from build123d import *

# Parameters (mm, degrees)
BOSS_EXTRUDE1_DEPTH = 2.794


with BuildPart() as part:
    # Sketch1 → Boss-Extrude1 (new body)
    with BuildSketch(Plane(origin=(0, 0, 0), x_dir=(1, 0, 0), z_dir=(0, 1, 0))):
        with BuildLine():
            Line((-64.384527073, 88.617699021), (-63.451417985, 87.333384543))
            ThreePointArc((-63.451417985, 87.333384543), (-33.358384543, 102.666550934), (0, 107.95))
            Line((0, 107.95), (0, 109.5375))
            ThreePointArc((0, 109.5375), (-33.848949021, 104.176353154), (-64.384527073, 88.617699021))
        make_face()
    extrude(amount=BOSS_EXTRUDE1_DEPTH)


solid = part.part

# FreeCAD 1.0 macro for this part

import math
import FreeCAD as App
import Part
import Sketcher

V = App.Vector
Q = App.Units.Quantity

doc = App.newDocument("Part")
body = doc.addObject("PartDesign::Body", "Body")

# Sketch on XZ plane
sketch1 = body.newObject("Sketcher::SketchObject", "Sketch")
sketch1.AttachmentSupport = (doc.getObject("XZ_Plane"), [""])
sketch1.MapMode = "FlatFace"
sketch1.addGeometry([
    Part.LineSegment(V(-64.4, -88.6, 0), V(-63.5, -87.3, 0)),
    Part.ArcOfCircle(Part.Circle(V(0, 0, 0), V(0, 0, 1), 108), math.radians(-126), math.radians(-90)),
    Part.LineSegment(V(0, -108, 0), V(0, -109.5, 0)),
    Part.ArcOfCircle(Part.Circle(V(0, 0, 0), V(0, 0, 1), 109.5), math.radians(-126), math.radians(-90)),
], False)
sketch1.addConstraint([
    Sketcher.Constraint("Coincident", 0, 2, 1, 1),
    Sketcher.Constraint("Coincident", 1, 2, 2, 1),
    Sketcher.Constraint("Coincident", 2, 2, 3, 2),
    Sketcher.Constraint("Coincident", 3, 1, 0, 1),
    Sketcher.Constraint("Vertical", 2),
    Sketcher.Constraint("Coincident", 1, 3, -1, 1),
    Sketcher.Constraint("Coincident", 3, 3, -1, 1),
    Sketcher.Constraint("PointOnObject", 1, 2, -2),
    Sketcher.Constraint("Radius", 1, Q("4.25 in")),
    Sketcher.Constraint("Angle", 0, Q("54 deg")),
    Sketcher.Constraint("Radius", 3, Q("4.3125 in")),
    Sketcher.Constraint("DistanceY", 3, 1, -1, 1, 88.617699),
])
pad1 = body.newObject("PartDesign::Pad", "Pad")
pad1.Profile = sketch1
pad1.Length = Q("0.11 in")
pad1.Reversed = True

doc.recompute()
